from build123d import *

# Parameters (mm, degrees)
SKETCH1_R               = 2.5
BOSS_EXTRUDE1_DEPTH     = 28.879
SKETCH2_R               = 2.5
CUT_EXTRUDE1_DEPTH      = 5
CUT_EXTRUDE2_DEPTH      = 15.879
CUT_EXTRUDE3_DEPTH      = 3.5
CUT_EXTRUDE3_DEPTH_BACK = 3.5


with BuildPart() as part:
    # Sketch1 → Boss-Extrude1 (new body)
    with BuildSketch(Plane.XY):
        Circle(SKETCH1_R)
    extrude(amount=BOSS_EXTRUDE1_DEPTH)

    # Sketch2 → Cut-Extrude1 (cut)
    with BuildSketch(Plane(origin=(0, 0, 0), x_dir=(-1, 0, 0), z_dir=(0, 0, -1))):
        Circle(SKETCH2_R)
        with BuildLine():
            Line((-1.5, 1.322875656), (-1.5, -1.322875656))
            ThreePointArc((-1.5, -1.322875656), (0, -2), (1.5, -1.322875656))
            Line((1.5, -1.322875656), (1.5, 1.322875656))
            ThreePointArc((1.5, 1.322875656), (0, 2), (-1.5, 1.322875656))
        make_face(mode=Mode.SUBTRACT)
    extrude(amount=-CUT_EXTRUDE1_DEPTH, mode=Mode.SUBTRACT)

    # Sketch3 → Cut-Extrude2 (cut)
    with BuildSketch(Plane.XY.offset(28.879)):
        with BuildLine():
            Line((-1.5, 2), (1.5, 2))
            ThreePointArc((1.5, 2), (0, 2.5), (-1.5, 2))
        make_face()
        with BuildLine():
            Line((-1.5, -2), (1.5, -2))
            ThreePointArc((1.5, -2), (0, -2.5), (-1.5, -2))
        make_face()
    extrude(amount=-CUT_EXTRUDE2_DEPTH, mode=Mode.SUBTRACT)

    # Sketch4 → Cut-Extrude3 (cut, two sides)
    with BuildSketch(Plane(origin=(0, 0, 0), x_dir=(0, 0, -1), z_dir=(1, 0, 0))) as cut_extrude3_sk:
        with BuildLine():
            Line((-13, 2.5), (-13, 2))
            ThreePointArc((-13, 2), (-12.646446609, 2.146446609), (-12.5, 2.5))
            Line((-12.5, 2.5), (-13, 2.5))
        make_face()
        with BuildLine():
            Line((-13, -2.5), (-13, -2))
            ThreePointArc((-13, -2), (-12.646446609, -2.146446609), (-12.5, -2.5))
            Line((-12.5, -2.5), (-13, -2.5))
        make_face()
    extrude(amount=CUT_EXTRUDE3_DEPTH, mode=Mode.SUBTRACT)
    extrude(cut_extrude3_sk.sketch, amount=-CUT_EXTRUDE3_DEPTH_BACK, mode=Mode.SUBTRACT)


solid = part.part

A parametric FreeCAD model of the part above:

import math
import FreeCAD as App
import Part
import Sketcher

V = App.Vector

doc = App.newDocument("Part")
body = doc.addObject("PartDesign::Body", "Body")

# Sketch on XY plane
sketch1 = doc.addObject("Sketcher::SketchObject", "Sketch")
body.addObject(sketch1)
sketch1.AttachmentSupport = (doc.XY_Plane, [""])
sketch1.MapMode = "FlatFace"
sketch1.addGeometry(Part.Circle(V(0, 0, 0), V(0, 0, 1), 2.5), False)
sketch1.addConstraint([
    Sketcher.Constraint("Coincident", 0, 3, -1, 1),
    Sketcher.Constraint("Diameter", 0, 5.0),
])
pad1 = doc.addObject("PartDesign::Pad", "Pad")
body.addObject(pad1)
pad1.Profile = sketch1
pad1.Length = 28.879

# Sketch on XY plane
sketch2 = doc.addObject("Sketcher::SketchObject", "Sketch001")
body.addObject(sketch2)
sketch2.AttachmentSupport = (doc.XY_Plane, [""])
sketch2.MapMode = "FlatFace"
sketch2.addGeometry([
    Part.Circle(V(0, 0, 0), V(0, 0, 1), 2.5),  # 0
    Part.LineSegment(V(1.5, -1.3, 0), V(1.5, 1.3, 0)),  # 1
    Part.ArcOfCircle(Part.Circle(V(0, 0, 0), V(0, 0, 1), 2), math.radians(41), math.radians(139)),  # 2
    Part.LineSegment(V(-1.5, 1.3, 0), V(-1.5, -1.3, 0)),  # 3
    Part.ArcOfCircle(Part.Circle(V(0, 0, 0), V(0, 0, 1), 2), math.radians(-139), math.radians(-41)),  # 4
], False)
sketch2.addConstraint([
    Sketcher.Constraint("Coincident", 1, 2, 2, 1),
    Sketcher.Constraint("Coincident", 2, 2, 3, 1),
    Sketcher.Constraint("Coincident", 3, 2, 4, 1),
    Sketcher.Constraint("Coincident", 4, 2, 1, 1),
    Sketcher.Constraint("Vertical", 1),
    Sketcher.Constraint("Vertical", 3),
    Sketcher.Constraint("Coincident", 0, 3, -1, 1),
    Sketcher.Constraint("Coincident", 2, 3, -1, 1),
    Sketcher.Constraint("Coincident", 4, 3, -1, 1),
    Sketcher.Constraint("Equal", 2, 4),
    Sketcher.Constraint("Horizontal", 1, 2, 2, 2),
    Sketcher.Constraint("Diameter", 0, 5.0),
    Sketcher.Constraint("Radius", 2, 2.0),
    Sketcher.Constraint("DistanceX", 2, 2, 1, 2, 3.0),
])
pocket1 = doc.addObject("PartDesign::Pocket", "Pocket")
body.addObject(pocket1)
pocket1.Profile = sketch2
pocket1.Length = 5
pocket1.Reversed = True

# Sketch on XY plane
sketch3 = doc.addObject("Sketcher::SketchObject", "Sketch002")
body.addObject(sketch3)
sketch3.AttachmentSupport = (doc.XY_Plane, [""])
sketch3.MapMode = "FlatFace"
sketch3.AttachmentOffset = App.Placement(V(0, 0, 28.879), App.Rotation())
sketch3.addGeometry([
    Part.LineSegment(V(-1.5, 2, 0), V(1.5, 2, 0)),
    Part.ArcOfCircle(Part.Circle(V(0, 0, 0), V(0, 0, 1), 2.5), math.radians(53), math.radians(127)),
    Part.LineSegment(V(1.5, -2, 0), V(-1.5, -2, 0)),
    Part.ArcOfCircle(Part.Circle(V(0, 0, 0), V(0, 0, 1), 2.5), math.radians(-127), math.radians(-53)),
], False)
sketch3.addConstraint([
    Sketcher.Constraint("Coincident", 0, 1, 1, 2),
    Sketcher.Constraint("Coincident", 1, 1, 0, 2),
    Sketcher.Constraint("Coincident", 2, 1, 3, 2),
    Sketcher.Constraint("Coincident", 3, 1, 2, 2),
    Sketcher.Constraint("Horizontal", 0),
    Sketcher.Constraint("Horizontal", 2),
    Sketcher.Constraint("Coincident", 1, 3, -1, 1),
    Sketcher.Constraint("Coincident", 3, 3, -1, 1),
    Sketcher.Constraint("Equal", 1, 3),
    Sketcher.Constraint("Vertical", 1, 1, 2, 1),
    Sketcher.Constraint("Radius", 1, 2.5),
    Sketcher.Constraint("DistanceX", 0, 1, 0, 2, 3.0),
])
pocket2 = doc.addObject("PartDesign::Pocket", "Pocket001")
body.addObject(pocket2)
pocket2.Profile = sketch3
pocket2.Length = 15.879

# Sketch on YZ plane
sketch4 = doc.addObject("Sketcher::SketchObject", "Sketch003")
body.addObject(sketch4)
sketch4.AttachmentSupport = (doc.YZ_Plane, [""])
sketch4.MapMode = "FlatFace"
sketch4.addGeometry([
    Part.LineSegment(V(2.5, 13, 0), V(2, 13, 0)),  # 0
    Part.ArcOfCircle(Part.Circle(V(2.5, 13, 0), V(0, 0, 1), 0.5), math.radians(180), math.radians(270)),  # 1
    Part.LineSegment(V(2.5, 12.5, 0), V(2.5, 13, 0)),  # 2
    Part.LineSegment(V(-2, 13, 0), V(-2.5, 13, 0)),  # 3
    Part.LineSegment(V(-2.5, 13, 0), V(-2.5, 12.5, 0)),  # 4
    Part.ArcOfCircle(Part.Circle(V(-2.5, 13, 0), V(0, 0, 1), 0.5), math.radians(-90), math.radians(0)),  # 5
], False)
sketch4.addConstraint([
    Sketcher.Constraint("Coincident", 0, 2, 1, 1),
    Sketcher.Constraint("Coincident", 1, 2, 2, 1),
    Sketcher.Constraint("Coincident", 2, 2, 0, 1),
    Sketcher.Constraint("Coincident", 3, 2, 4, 1),
    Sketcher.Constraint("Coincident", 4, 2, 5, 1),
    Sketcher.Constraint("Coincident", 5, 2, 3, 1),
    Sketcher.Constraint("Horizontal", 0),
    Sketcher.Constraint("Vertical", 2),
    Sketcher.Constraint("Horizontal", 3),
    Sketcher.Constraint("Vertical", 4),
    Sketcher.Constraint("Coincident", 2, 2, 1, 3),
    Sketcher.Constraint("Coincident", 3, 2, 5, 3),
    Sketcher.Constraint("Equal", 1, 5),
    Sketcher.Constraint("Symmetric", 1, 3, 5, 3, -2),
    Sketcher.Constraint("Radius", 1, 0.5),
    Sketcher.Constraint("DistanceY", -1, 1, 1, 3, 13.0),
    Sketcher.Constraint("DistanceX", -1, 1, 0, 2, 2.0),
])
pocket3 = doc.addObject("PartDesign::Pocket", "Pocket002")
body.addObject(pocket3)
pocket3.Profile = sketch4
pocket3.Type = "ThroughAll"
pocket3.Midplane = True

doc.recompute()
